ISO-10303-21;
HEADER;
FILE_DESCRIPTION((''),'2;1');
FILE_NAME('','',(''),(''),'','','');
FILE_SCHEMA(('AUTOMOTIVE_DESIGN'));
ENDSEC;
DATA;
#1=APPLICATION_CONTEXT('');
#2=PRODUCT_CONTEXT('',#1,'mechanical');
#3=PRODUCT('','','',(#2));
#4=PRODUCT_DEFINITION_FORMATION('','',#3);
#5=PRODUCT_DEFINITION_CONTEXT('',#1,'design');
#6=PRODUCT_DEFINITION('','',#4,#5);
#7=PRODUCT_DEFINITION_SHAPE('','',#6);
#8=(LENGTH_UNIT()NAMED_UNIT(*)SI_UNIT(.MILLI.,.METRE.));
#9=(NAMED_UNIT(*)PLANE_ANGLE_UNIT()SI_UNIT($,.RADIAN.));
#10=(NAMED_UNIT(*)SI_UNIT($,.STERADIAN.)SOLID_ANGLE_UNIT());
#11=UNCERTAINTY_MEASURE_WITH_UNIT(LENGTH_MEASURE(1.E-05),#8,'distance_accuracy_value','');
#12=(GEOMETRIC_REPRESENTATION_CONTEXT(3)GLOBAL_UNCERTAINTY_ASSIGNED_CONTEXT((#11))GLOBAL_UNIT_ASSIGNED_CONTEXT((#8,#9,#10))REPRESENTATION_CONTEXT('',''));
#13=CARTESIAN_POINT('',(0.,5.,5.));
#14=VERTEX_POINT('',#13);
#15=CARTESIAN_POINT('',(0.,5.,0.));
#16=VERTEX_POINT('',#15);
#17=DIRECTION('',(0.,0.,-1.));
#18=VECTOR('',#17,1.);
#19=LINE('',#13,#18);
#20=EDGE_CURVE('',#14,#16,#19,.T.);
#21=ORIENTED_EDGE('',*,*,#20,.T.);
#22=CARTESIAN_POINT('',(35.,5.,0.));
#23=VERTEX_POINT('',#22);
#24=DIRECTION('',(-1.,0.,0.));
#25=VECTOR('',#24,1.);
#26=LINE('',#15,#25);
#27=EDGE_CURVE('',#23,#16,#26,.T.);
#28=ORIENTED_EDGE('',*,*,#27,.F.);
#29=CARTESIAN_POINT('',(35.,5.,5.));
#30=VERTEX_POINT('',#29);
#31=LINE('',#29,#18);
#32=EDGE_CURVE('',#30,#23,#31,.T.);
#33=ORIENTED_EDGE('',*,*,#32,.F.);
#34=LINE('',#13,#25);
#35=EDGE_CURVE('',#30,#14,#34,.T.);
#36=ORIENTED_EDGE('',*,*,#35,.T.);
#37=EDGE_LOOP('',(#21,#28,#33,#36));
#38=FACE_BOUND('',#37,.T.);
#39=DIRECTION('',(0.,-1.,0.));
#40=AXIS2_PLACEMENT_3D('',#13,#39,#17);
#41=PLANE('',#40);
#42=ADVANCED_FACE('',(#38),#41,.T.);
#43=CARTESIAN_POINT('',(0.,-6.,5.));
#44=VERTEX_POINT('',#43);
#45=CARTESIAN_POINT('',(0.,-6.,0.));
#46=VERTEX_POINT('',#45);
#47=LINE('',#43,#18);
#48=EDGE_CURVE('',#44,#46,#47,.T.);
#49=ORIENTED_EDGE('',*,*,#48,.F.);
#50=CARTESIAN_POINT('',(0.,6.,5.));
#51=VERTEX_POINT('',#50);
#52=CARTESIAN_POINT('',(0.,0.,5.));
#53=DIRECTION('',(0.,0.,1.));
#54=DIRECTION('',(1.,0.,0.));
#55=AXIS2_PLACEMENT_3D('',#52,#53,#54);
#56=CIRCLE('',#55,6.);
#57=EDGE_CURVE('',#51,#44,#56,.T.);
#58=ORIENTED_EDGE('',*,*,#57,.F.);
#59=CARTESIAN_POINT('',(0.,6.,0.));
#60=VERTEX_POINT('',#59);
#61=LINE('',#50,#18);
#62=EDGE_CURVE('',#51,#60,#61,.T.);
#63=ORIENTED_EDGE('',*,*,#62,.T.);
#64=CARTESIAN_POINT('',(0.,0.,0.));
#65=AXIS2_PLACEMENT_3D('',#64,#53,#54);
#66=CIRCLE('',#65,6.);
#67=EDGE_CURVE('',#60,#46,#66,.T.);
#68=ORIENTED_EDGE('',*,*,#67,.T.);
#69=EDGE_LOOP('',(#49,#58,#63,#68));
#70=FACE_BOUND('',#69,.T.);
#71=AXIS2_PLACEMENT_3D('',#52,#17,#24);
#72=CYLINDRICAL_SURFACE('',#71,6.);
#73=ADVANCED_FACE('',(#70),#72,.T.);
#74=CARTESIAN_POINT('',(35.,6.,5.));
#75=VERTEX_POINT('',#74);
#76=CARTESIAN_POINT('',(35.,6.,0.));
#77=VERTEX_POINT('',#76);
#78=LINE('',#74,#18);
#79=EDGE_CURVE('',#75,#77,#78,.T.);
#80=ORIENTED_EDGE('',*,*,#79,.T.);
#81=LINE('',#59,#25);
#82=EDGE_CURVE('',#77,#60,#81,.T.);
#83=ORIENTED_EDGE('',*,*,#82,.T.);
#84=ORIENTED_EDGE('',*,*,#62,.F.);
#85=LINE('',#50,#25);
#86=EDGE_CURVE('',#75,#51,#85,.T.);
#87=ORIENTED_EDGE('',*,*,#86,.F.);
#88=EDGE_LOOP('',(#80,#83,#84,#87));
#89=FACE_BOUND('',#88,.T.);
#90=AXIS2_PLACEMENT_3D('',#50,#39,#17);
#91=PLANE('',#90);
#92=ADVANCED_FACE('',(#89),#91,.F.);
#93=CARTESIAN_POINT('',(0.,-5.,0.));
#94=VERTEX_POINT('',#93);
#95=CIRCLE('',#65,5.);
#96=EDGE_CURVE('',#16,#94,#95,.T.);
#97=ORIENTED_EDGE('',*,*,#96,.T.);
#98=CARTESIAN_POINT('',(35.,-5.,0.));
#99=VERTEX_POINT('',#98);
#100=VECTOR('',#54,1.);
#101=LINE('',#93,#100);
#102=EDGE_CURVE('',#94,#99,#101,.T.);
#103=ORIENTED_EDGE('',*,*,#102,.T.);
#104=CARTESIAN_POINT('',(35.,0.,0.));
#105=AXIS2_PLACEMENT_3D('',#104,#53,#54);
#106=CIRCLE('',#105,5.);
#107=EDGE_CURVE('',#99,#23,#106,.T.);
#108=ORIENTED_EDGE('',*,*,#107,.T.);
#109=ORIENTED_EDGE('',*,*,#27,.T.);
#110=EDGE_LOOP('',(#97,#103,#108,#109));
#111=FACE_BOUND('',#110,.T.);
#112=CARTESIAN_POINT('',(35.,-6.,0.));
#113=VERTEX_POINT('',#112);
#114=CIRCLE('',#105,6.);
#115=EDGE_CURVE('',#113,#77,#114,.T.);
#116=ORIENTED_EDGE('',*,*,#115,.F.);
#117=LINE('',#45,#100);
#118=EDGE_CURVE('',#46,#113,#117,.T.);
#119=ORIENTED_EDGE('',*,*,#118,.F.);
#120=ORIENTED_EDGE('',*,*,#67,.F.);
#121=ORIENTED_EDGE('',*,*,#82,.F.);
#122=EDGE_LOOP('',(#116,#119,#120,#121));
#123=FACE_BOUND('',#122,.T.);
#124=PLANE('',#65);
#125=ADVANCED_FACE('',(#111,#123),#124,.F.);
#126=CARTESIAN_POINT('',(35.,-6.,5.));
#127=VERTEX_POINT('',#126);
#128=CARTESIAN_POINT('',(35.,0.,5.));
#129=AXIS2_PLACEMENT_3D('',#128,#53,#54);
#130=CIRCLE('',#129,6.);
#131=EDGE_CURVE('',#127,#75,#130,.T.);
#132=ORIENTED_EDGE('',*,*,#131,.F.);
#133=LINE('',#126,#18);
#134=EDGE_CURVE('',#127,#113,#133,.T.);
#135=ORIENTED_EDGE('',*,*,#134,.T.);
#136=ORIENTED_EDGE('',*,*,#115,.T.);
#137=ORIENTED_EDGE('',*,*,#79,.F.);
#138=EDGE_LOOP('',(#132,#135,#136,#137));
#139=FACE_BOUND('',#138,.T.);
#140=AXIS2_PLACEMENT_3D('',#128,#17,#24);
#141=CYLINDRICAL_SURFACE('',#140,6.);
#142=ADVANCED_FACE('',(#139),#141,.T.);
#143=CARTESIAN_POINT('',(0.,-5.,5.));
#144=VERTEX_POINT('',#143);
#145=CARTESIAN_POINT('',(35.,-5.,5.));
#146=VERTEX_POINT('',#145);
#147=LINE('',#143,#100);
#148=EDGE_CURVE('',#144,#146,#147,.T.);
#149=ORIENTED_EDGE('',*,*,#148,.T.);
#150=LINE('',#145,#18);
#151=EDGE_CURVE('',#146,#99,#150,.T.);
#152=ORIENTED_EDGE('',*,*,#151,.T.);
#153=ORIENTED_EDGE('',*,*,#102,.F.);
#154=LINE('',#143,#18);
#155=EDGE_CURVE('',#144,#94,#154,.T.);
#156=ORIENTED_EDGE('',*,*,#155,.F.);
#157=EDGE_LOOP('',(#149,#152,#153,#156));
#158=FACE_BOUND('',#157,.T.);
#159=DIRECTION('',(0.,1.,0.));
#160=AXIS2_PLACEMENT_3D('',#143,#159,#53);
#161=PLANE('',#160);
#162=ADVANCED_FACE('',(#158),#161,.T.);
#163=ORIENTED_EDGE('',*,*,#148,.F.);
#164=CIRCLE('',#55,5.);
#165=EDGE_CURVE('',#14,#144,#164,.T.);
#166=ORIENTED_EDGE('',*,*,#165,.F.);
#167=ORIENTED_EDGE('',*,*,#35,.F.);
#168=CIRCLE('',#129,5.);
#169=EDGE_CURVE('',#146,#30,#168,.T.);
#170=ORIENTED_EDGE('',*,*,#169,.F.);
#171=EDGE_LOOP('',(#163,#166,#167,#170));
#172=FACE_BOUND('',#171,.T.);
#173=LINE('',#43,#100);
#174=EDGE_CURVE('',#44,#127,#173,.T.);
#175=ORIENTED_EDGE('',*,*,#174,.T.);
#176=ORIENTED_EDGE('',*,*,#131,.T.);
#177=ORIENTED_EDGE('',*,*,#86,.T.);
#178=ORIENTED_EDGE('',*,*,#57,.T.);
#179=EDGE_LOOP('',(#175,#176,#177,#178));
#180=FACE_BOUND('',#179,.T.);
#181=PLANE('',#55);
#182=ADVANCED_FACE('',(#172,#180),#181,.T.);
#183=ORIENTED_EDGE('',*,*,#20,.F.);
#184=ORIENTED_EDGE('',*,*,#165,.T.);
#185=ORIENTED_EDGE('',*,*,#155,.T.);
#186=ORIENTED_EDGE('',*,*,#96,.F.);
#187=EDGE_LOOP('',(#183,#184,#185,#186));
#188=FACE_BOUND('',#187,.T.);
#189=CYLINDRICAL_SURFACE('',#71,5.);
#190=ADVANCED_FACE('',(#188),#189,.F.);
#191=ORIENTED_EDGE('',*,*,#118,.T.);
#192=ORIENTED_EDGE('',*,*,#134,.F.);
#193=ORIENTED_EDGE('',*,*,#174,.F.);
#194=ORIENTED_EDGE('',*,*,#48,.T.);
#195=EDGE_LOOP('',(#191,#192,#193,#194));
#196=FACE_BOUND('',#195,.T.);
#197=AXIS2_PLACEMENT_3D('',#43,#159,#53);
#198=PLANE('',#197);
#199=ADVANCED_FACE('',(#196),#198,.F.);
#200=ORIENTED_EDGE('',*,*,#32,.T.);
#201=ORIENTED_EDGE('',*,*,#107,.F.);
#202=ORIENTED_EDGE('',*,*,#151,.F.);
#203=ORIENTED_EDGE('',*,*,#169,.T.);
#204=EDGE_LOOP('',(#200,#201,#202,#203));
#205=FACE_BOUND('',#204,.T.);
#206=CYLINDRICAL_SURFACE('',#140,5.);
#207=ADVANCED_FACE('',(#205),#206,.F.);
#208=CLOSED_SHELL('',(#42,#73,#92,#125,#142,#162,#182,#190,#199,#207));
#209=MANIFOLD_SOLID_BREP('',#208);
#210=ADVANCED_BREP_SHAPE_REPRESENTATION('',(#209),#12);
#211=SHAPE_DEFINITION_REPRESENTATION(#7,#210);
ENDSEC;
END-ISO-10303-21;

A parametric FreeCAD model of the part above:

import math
import FreeCAD as App
import Part
import Sketcher
Q = App.Units.Quantity

doc = App.newDocument("Part")
body = doc.addObject("PartDesign::Body", "Body")

sketch1 = body.newObject("Sketcher::SketchObject", "Sketch")
sketch1.AttachmentSupport = (doc.getObject("XY_Plane"), [""])
sketch1.MapMode = "FlatFace"
sketch1.addGeometry([
    Part.LineSegment(App.Vector(35, 6, 0), App.Vector(0, 6, 0)),
    Part.ArcOfCircle(Part.Circle(App.Vector(0, 0, 0), App.Vector(0, 0, 1), 6), math.radians(90), math.radians(270)),
    Part.LineSegment(App.Vector(0, -6, 0), App.Vector(35, -6, 0)),
    Part.ArcOfCircle(Part.Circle(App.Vector(35, 0, 0), App.Vector(0, 0, 1), 6), math.radians(-90), math.radians(90)),
    Part.LineSegment(App.Vector(0, 5, 0), App.Vector(35, 5, 0)),
    Part.ArcOfCircle(Part.Circle(App.Vector(35, 0, 0), App.Vector(0, 0, 1), 5), math.radians(-90), math.radians(90)),
    Part.LineSegment(App.Vector(35, -5, 0), App.Vector(0, -5, 0)),
    Part.ArcOfCircle(Part.Circle(App.Vector(0, 0, 0), App.Vector(0, 0, 1), 5), math.radians(90), math.radians(270)),
], False)
sketch1.addConstraint([
    Sketcher.Constraint("Tangent", 0, 2, 1, 1),
    Sketcher.Constraint("Tangent", 1, 2, 2, 1),
    Sketcher.Constraint("Tangent", 2, 2, 3, 1),
    Sketcher.Constraint("Tangent", 3, 2, 0, 1),
    Sketcher.Constraint("Tangent", 4, 2, 5, 2),
    Sketcher.Constraint("Tangent", 5, 1, 6, 1),
    Sketcher.Constraint("Tangent", 6, 2, 7, 2),
    Sketcher.Constraint("Tangent", 7, 1, 4, 1),
    Sketcher.Constraint("Horizontal", 0),
    Sketcher.Constraint("Horizontal", 2),
    Sketcher.Constraint("Horizontal", 4),
    Sketcher.Constraint("Horizontal", 6),
    Sketcher.Constraint("Coincident", 1, 3, -1, 1),
    Sketcher.Constraint("Coincident", 7, 3, -1, 1),
    Sketcher.Constraint("Vertical", 5, 3, 2, 2),
    Sketcher.Constraint("Radius", 1, Q("6 mm")),
    Sketcher.Constraint("Radius", 5, Q("5 mm")),
    Sketcher.Constraint("DistanceX", 0, 2, 0, 1, Q("35 mm")),
])
pad1 = body.newObject("PartDesign::Pad", "Pad")
pad1.Profile = sketch1
pad1.Length = 5

doc.recompute()
